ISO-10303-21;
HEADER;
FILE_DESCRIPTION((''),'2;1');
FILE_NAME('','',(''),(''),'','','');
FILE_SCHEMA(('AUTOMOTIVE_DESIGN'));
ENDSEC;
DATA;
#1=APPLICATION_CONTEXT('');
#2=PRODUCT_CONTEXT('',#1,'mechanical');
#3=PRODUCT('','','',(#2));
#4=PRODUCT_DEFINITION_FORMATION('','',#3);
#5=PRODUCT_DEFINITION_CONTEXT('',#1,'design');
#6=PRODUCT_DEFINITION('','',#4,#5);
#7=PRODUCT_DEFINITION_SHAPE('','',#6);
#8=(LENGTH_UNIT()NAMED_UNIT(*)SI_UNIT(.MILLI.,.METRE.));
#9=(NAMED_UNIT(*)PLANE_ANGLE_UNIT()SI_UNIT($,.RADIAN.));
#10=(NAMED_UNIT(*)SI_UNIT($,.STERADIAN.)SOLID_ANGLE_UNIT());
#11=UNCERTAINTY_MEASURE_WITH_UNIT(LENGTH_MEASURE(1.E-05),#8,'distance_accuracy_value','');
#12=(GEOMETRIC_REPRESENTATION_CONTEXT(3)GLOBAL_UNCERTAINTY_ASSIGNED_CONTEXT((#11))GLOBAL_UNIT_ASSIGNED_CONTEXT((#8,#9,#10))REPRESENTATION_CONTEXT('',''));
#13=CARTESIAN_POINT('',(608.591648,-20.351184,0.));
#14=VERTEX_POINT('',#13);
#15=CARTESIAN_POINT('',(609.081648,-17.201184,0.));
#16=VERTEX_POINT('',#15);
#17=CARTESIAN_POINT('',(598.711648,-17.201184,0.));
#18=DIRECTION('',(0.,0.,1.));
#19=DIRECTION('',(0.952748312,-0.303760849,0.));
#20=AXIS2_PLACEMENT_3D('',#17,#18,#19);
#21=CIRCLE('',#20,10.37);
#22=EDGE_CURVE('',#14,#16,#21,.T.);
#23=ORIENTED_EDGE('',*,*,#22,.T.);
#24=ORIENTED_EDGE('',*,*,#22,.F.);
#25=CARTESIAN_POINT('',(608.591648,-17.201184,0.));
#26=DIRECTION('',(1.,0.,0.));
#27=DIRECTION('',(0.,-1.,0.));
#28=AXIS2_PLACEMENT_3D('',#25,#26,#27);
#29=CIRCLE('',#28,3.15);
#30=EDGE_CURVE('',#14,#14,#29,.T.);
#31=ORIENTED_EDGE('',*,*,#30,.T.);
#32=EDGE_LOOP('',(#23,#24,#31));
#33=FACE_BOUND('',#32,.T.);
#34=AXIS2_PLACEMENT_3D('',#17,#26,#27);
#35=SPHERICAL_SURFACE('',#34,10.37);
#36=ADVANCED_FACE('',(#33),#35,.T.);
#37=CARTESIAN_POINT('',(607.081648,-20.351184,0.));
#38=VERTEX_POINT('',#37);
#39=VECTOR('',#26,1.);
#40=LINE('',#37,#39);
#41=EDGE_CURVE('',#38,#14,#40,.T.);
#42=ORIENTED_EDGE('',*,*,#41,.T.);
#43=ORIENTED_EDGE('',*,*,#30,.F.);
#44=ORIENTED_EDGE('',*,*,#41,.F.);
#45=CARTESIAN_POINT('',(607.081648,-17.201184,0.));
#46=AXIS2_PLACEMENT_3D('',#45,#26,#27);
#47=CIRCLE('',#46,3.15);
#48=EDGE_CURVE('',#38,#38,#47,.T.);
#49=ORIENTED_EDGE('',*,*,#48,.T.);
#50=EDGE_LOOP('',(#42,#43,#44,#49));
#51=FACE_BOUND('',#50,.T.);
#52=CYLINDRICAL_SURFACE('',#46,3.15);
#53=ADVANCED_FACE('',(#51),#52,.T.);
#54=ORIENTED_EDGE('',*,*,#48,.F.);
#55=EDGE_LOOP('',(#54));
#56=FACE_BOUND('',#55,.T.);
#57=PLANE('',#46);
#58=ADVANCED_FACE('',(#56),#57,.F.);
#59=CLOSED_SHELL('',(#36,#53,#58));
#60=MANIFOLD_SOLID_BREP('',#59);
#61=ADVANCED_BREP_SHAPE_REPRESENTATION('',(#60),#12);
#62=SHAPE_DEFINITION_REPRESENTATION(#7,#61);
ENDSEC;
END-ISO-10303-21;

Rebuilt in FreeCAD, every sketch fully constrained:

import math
import FreeCAD as App
import Part
import Sketcher
Q = App.Units.Quantity

doc = App.newDocument("Part")
body = doc.addObject("PartDesign::Body", "Body")

sketch1 = body.newObject("Sketcher::SketchObject", "Sketch")
sketch1.AttachmentSupport = (doc.getObject("XY_Plane"), [""])
sketch1.MapMode = "FlatFace"
sketch1.addGeometry([
    Part.LineSegment(App.Vector(607.081648, -14.051184, 0), App.Vector(607.081648, -17.201184, 0)),
    Part.LineSegment(App.Vector(607.081648, -17.201184, 0), App.Vector(609.081648, -17.201184, 0)),
    Part.ArcOfCircle(Part.Circle(App.Vector(598.711648, -17.201184, 0), App.Vector(0, 0, 1), 10.37), math.radians(0), math.radians(17.683629)),
    Part.LineSegment(App.Vector(608.591648, -14.051184, 0), App.Vector(607.081648, -14.051184, 0)),
], False)
sketch1.addGeometry(Part.LineSegment(App.Vector(598.711648, -17.201184, 0), App.Vector(609.081648, -17.201184, 0)), True)
sketch1.addConstraint([
    Sketcher.Constraint("Coincident", 0, 2, 1, 1),
    Sketcher.Constraint("Coincident", 1, 2, 2, 1),
    Sketcher.Constraint("Coincident", 2, 2, 3, 1),
    Sketcher.Constraint("Coincident", 3, 2, 0, 1),
    Sketcher.Constraint("Vertical", 0),
    Sketcher.Constraint("Horizontal", 1),
    Sketcher.Constraint("Horizontal", 3),
    Sketcher.Constraint("Horizontal", 4),
    Sketcher.Constraint("Coincident", 4, 1, 2, 3),
    Sketcher.Constraint("Coincident", 4, 2, 1, 2),
    Sketcher.Constraint("DistanceX", 1, 1, 1, 2, Q("2 mm")),
    Sketcher.Constraint("Radius", 2, Q("10.37 mm")),
    Sketcher.Constraint("DistanceX", 3, 2, 3, 1, Q("1.51 mm")),
    Sketcher.Constraint("DistanceX", -1, 1, 0, 2, Q("607.081648 mm")),
    Sketcher.Constraint("DistanceY", 2, 3, -1, 1, Q("17.201184 mm")),
])
revolution = body.newObject("PartDesign::Revolution", "Revolution")
revolution.Profile = sketch1
revolution.ReferenceAxis = (sketch1, ["Axis0"])
revolution.Angle = 360

doc.recompute()
